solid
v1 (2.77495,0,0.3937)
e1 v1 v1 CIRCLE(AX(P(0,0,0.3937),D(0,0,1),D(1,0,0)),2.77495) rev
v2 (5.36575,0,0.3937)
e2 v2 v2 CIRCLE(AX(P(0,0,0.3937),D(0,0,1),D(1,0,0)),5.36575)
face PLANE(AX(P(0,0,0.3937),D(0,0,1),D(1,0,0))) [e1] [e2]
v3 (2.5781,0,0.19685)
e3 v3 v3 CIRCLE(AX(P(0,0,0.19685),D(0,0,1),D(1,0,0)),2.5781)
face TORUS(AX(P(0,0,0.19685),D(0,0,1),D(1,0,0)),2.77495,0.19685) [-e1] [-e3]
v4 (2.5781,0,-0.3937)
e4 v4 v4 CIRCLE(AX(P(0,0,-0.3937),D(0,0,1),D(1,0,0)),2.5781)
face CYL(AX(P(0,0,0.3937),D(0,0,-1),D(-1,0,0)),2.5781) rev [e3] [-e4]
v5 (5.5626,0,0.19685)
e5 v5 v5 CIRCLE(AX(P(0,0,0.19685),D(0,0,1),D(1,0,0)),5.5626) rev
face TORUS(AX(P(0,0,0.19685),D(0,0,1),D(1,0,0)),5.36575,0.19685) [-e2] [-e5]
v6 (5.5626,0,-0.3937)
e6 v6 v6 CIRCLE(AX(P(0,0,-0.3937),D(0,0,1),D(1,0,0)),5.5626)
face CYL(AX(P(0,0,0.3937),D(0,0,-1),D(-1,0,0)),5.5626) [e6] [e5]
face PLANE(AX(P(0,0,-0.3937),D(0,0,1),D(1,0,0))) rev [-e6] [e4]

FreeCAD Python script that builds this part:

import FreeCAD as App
import Part
import Sketcher
from FreeCAD import Vector
Q = App.Units.Quantity


def edges_at(feature, points):
    """Names of the edges that pass closest to the given points."""
    edges = feature.Shape.Edges
    near = lambda p: min(range(len(edges)), key=lambda i: edges[i].distToShape(Part.Vertex(*p))[0])
    return sorted({f"Edge{near(p) + 1}" for p in points})

doc = App.newDocument("Part")
body = doc.addObject("PartDesign::Body", "Body")

sketch1 = doc.addObject("Sketcher::SketchObject", "Sketch")
body.addObject(sketch1)
sketch1.AttachmentSupport = (doc.XY_Plane, [""])
sketch1.MapMode = "FlatFace"
sketch1.addGeometry([
    Part.Circle(Vector(0, 0, 0), Vector(0, 0, 1), 5.5626),
    Part.Circle(Vector(0, 0, 0), Vector(0, 0, 1), 2.5781),
], False)
sketch1.addConstraint([
    Sketcher.Constraint("Coincident", 0, 3, -1, 1),
    Sketcher.Constraint("Coincident", 1, 3, -1, 1),
    Sketcher.Constraint("Diameter", 0, Q("0.438 in")),
    Sketcher.Constraint("Diameter", 1, Q("0.203 in")),
])
pad1 = doc.addObject("PartDesign::Pad", "Pad")
body.addObject(pad1)
pad1.Profile = sketch1
pad1.Type = "TwoLengths"
pad1.Length = Q("0.0155 in")
pad1.Length2 = Q("0.0155 in")
doc.recompute()

fillet = doc.addObject("PartDesign::Fillet", "Fillet")
body.addObject(fillet)
fillet.Base = (pad1, edges_at(pad1, [(-5.563, 0, 0.394), (-2.578, 0, 0.394)]))
fillet.Radius = 0.19685

doc.recompute()
